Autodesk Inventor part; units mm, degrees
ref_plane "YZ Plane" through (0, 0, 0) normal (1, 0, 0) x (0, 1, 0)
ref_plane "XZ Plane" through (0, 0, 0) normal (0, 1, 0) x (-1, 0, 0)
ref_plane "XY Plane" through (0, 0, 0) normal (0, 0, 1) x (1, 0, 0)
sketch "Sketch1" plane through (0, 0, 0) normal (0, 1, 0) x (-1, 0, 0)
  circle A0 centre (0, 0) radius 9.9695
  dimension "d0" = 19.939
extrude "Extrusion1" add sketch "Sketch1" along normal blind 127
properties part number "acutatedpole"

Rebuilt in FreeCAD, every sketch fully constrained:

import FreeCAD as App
import Part
import Sketcher
Q = App.Units.Quantity

doc = App.newDocument("Part")
body = doc.addObject("PartDesign::Body", "Body")

sketch1 = body.newObject("Sketcher::SketchObject", "Sketch")
sketch1.AttachmentSupport = (doc.getObject("XZ_Plane"), [""])
sketch1.MapMode = "FlatFace"
sketch1.addGeometry(Part.Circle(App.Vector(0, 0, 0), App.Vector(0, 0, 1), 10), False)
sketch1.addConstraint([
    Sketcher.Constraint("Coincident", 0, 3, -1, 1),
    Sketcher.Constraint("Diameter", 0, Q("0.785 in")),
])
pad1 = body.newObject("PartDesign::Pad", "Pad")
pad1.Profile = sketch1
pad1.Length = Q("5 in")
pad1.Reversed = True

doc.recompute()
